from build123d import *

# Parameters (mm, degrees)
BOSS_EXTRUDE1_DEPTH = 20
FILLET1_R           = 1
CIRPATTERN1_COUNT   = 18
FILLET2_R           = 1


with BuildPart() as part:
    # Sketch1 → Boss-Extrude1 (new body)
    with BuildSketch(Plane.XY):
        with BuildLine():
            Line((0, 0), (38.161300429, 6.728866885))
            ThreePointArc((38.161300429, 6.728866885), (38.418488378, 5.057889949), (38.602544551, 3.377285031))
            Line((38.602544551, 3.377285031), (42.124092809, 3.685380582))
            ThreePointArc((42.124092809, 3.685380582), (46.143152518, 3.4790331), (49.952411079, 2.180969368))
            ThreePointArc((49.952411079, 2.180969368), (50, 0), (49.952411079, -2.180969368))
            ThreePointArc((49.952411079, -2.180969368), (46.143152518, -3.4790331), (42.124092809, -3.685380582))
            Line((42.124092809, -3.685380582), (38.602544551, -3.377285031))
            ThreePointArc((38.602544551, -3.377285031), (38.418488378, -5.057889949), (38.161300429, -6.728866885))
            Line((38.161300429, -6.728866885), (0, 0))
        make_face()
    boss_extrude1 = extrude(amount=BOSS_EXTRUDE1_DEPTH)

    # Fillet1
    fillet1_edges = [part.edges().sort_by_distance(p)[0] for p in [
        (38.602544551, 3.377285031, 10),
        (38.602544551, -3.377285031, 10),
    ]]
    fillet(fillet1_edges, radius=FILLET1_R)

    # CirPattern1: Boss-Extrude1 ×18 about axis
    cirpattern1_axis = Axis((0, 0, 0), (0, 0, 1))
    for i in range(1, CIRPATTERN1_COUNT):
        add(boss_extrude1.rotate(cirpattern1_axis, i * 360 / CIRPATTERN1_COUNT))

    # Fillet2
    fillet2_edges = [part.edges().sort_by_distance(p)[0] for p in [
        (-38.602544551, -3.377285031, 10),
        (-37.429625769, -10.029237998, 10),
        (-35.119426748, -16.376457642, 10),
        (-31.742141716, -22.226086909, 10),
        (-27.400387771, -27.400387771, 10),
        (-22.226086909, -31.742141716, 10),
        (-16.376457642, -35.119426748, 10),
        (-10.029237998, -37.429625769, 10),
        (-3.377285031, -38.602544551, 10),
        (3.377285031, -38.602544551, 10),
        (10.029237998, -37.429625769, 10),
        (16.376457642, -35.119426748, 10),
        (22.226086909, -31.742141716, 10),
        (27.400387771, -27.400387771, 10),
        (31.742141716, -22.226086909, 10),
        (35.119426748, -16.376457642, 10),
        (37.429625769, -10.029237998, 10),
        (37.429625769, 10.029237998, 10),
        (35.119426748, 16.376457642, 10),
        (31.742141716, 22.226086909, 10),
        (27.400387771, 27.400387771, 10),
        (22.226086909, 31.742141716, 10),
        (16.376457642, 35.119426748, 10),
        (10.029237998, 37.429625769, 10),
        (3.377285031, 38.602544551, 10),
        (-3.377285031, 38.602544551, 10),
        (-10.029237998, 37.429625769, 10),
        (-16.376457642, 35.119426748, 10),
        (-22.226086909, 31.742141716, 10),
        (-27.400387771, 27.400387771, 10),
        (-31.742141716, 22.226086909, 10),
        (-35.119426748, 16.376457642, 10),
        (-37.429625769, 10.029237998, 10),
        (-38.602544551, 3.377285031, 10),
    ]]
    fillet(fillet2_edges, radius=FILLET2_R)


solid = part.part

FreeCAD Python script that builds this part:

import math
import FreeCAD as App
import Part
import Sketcher
from FreeCAD import Vector
Q = App.Units.Quantity


def edges_at(feature, points):
    """Names of the edges that pass closest to the given points."""
    edges = feature.Shape.Edges
    near = lambda p: min(range(len(edges)), key=lambda i: edges[i].distToShape(Part.Vertex(*p))[0])
    return sorted({f"Edge{near(p) + 1}" for p in points})

doc = App.newDocument("Part")
body = doc.addObject("PartDesign::Body", "Body")

sketch1 = body.newObject("Sketcher::SketchObject", "Sketch")
sketch1.AttachmentSupport = (doc.getObject("XY_Plane"), [""])
sketch1.MapMode = "FlatFace"
sketch1.addGeometry(Part.LineSegment(Vector(38.1613, 6.728867, 0), Vector(0, 0, 0)), False)
sketch1.addGeometry(Part.LineSegment(Vector(0, 0, 0), Vector(38.1613, -6.728867, 0)), False)
sketch1.addGeometry(Part.ArcOfCircle(Part.Circle(Vector(0, 0, 0), Vector(0, 0, 1), 38.75), math.radians(-10), math.radians(-5)), False)
sketch1.addGeometry(Part.LineSegment(Vector(38.602545, -3.377285, 0), Vector(42.124093, -3.685381, 0)), False)
sketch1.addGeometry(Part.ArcOfCircle(Part.Circle(Vector(43.3938, 10.827434, 0), Vector(0, 0, 1), 14.568251), math.radians(-95), math.radians(-63.243551)), False)
sketch1.addGeometry(Part.ArcOfCircle(Part.Circle(Vector(0, 0, 0), Vector(0, 0, 1), 50), math.radians(-2.5), math.radians(2.5)), False)
sketch1.addGeometry(Part.ArcOfCircle(Part.Circle(Vector(43.3938, -10.827434, 0), Vector(0, 0, 1), 14.568251), math.radians(63.243551), math.radians(95)), False)
sketch1.addGeometry(Part.LineSegment(Vector(42.124093, 3.685381, 0), Vector(38.602545, 3.377285, 0)), False)
sketch1.addGeometry(Part.ArcOfCircle(Part.Circle(Vector(0, 0, 0), Vector(0, 0, 1), 38.75), math.radians(5), math.radians(10)), False)
sketch1.addConstraint(Sketcher.Constraint("Coincident", 0, 2, 1, 1))
sketch1.addConstraint(Sketcher.Constraint("Coincident", 1, 2, 2, 1))
sketch1.addConstraint(Sketcher.Constraint("Coincident", 2, 2, 3, 1))
sketch1.addConstraint(Sketcher.Constraint("Tangent", 3, 2, 4, 1))
sketch1.addConstraint(Sketcher.Constraint("Coincident", 4, 2, 5, 1))
sketch1.addConstraint(Sketcher.Constraint("Coincident", 5, 2, 6, 1))
sketch1.addConstraint(Sketcher.Constraint("Tangent", 6, 2, 7, 1))
sketch1.addConstraint(Sketcher.Constraint("Coincident", 7, 2, 8, 1))
sketch1.addConstraint(Sketcher.Constraint("Coincident", 8, 2, 0, 1))
sketch1.addConstraint(Sketcher.Constraint("Coincident", 2, 3, -1, 1))
sketch1.addConstraint(Sketcher.Constraint("Coincident", 5, 3, -1, 1))
sketch1.addConstraint(Sketcher.Constraint("Coincident", 8, 3, -1, 1))
sketch1.addConstraint(Sketcher.Constraint("Coincident", 0, 2, -1, 1))
sketch1.addConstraint(Sketcher.Constraint("Equal", 4, 6))
sketch1.addConstraint(Sketcher.Constraint("Equal", 2, 8))
sketch1.addConstraint(Sketcher.Constraint("Symmetric", 4, 3, 6, 3, -1))
sketch1.addConstraint(Sketcher.Constraint("Vertical", 3, 2, 6, 2))
sketch1.addConstraint(Sketcher.Constraint("Vertical", 1, 2, 8, 2))
sketch1.addConstraint(Sketcher.Constraint("Radius", 5, 50.0))
sketch1.addConstraint(Sketcher.Constraint("Angle", 0, Q("-170 deg")))
sketch1.addConstraint(Sketcher.Constraint("Angle", 3, Q("-5 deg")))
sketch1.addConstraint(Sketcher.Constraint("Radius", 2, 38.75))
sketch1.addConstraint(Sketcher.Constraint("Radius", 4, 14.568251))
sketch1.addConstraint(Sketcher.Constraint("Distance", 3, 3.535))
sketch1.addConstraint(Sketcher.Constraint("DistanceX", -1, 1, 4, 3, 43.3938))
pad1 = body.newObject("PartDesign::Pad", "Pad")
pad1.Profile = sketch1
pad1.Length = 20
doc.recompute()

fillet = body.newObject("PartDesign::Fillet", "Fillet")
fillet.Base = (pad1, edges_at(pad1, [(38.603, 3.377, 10), (38.603, -3.377, 10)]))
fillet.Radius = 1
doc.recompute()

polarpattern = body.newObject("PartDesign::PolarPattern", "PolarPattern")
polarpattern.Originals = [pad1]
polarpattern.Axis = (doc.getObject("Z_Axis"), [""])
polarpattern.Angle = 360
polarpattern.Occurrences = 18
body.Tip = polarpattern
doc.recompute()

fillet2 = body.newObject("PartDesign::Fillet", "Fillet001")
fillet2.Base = (polarpattern, edges_at(polarpattern, [
    (-38.603, -3.377, 10),
    (-37.43, -10.029, 10),
    (-35.119, -16.376, 10),
    (-31.742, -22.226, 10),
    (-27.4, -27.4, 10),
    (-22.226, -31.742, 10),
    (-16.376, -35.119, 10),
    (-10.029, -37.43, 10),
    (-3.377, -38.603, 10),
    (3.377, -38.603, 10),
    (10.029, -37.43, 10),
    (16.376, -35.119, 10),
    (22.226, -31.742, 10),
    (27.4, -27.4, 10),
    (31.742, -22.226, 10),
    (35.119, -16.376, 10),
    (37.43, -10.029, 10),
    (37.43, 10.029, 10),
    (35.119, 16.376, 10),
    (31.742, 22.226, 10),
    (27.4, 27.4, 10),
    (22.226, 31.742, 10),
    (16.376, 35.119, 10),
    (10.029, 37.43, 10),
    (3.377, 38.603, 10),
    (-3.377, 38.603, 10),
    (-10.029, 37.43, 10),
    (-16.376, 35.119, 10),
    (-22.226, 31.742, 10),
    (-27.4, 27.4, 10),
    (-31.742, 22.226, 10),
    (-35.119, 16.376, 10),
    (-37.43, 10.029, 10),
    (-38.603, 3.377, 10),
]))
fillet2.Radius = 1

doc.recompute()
